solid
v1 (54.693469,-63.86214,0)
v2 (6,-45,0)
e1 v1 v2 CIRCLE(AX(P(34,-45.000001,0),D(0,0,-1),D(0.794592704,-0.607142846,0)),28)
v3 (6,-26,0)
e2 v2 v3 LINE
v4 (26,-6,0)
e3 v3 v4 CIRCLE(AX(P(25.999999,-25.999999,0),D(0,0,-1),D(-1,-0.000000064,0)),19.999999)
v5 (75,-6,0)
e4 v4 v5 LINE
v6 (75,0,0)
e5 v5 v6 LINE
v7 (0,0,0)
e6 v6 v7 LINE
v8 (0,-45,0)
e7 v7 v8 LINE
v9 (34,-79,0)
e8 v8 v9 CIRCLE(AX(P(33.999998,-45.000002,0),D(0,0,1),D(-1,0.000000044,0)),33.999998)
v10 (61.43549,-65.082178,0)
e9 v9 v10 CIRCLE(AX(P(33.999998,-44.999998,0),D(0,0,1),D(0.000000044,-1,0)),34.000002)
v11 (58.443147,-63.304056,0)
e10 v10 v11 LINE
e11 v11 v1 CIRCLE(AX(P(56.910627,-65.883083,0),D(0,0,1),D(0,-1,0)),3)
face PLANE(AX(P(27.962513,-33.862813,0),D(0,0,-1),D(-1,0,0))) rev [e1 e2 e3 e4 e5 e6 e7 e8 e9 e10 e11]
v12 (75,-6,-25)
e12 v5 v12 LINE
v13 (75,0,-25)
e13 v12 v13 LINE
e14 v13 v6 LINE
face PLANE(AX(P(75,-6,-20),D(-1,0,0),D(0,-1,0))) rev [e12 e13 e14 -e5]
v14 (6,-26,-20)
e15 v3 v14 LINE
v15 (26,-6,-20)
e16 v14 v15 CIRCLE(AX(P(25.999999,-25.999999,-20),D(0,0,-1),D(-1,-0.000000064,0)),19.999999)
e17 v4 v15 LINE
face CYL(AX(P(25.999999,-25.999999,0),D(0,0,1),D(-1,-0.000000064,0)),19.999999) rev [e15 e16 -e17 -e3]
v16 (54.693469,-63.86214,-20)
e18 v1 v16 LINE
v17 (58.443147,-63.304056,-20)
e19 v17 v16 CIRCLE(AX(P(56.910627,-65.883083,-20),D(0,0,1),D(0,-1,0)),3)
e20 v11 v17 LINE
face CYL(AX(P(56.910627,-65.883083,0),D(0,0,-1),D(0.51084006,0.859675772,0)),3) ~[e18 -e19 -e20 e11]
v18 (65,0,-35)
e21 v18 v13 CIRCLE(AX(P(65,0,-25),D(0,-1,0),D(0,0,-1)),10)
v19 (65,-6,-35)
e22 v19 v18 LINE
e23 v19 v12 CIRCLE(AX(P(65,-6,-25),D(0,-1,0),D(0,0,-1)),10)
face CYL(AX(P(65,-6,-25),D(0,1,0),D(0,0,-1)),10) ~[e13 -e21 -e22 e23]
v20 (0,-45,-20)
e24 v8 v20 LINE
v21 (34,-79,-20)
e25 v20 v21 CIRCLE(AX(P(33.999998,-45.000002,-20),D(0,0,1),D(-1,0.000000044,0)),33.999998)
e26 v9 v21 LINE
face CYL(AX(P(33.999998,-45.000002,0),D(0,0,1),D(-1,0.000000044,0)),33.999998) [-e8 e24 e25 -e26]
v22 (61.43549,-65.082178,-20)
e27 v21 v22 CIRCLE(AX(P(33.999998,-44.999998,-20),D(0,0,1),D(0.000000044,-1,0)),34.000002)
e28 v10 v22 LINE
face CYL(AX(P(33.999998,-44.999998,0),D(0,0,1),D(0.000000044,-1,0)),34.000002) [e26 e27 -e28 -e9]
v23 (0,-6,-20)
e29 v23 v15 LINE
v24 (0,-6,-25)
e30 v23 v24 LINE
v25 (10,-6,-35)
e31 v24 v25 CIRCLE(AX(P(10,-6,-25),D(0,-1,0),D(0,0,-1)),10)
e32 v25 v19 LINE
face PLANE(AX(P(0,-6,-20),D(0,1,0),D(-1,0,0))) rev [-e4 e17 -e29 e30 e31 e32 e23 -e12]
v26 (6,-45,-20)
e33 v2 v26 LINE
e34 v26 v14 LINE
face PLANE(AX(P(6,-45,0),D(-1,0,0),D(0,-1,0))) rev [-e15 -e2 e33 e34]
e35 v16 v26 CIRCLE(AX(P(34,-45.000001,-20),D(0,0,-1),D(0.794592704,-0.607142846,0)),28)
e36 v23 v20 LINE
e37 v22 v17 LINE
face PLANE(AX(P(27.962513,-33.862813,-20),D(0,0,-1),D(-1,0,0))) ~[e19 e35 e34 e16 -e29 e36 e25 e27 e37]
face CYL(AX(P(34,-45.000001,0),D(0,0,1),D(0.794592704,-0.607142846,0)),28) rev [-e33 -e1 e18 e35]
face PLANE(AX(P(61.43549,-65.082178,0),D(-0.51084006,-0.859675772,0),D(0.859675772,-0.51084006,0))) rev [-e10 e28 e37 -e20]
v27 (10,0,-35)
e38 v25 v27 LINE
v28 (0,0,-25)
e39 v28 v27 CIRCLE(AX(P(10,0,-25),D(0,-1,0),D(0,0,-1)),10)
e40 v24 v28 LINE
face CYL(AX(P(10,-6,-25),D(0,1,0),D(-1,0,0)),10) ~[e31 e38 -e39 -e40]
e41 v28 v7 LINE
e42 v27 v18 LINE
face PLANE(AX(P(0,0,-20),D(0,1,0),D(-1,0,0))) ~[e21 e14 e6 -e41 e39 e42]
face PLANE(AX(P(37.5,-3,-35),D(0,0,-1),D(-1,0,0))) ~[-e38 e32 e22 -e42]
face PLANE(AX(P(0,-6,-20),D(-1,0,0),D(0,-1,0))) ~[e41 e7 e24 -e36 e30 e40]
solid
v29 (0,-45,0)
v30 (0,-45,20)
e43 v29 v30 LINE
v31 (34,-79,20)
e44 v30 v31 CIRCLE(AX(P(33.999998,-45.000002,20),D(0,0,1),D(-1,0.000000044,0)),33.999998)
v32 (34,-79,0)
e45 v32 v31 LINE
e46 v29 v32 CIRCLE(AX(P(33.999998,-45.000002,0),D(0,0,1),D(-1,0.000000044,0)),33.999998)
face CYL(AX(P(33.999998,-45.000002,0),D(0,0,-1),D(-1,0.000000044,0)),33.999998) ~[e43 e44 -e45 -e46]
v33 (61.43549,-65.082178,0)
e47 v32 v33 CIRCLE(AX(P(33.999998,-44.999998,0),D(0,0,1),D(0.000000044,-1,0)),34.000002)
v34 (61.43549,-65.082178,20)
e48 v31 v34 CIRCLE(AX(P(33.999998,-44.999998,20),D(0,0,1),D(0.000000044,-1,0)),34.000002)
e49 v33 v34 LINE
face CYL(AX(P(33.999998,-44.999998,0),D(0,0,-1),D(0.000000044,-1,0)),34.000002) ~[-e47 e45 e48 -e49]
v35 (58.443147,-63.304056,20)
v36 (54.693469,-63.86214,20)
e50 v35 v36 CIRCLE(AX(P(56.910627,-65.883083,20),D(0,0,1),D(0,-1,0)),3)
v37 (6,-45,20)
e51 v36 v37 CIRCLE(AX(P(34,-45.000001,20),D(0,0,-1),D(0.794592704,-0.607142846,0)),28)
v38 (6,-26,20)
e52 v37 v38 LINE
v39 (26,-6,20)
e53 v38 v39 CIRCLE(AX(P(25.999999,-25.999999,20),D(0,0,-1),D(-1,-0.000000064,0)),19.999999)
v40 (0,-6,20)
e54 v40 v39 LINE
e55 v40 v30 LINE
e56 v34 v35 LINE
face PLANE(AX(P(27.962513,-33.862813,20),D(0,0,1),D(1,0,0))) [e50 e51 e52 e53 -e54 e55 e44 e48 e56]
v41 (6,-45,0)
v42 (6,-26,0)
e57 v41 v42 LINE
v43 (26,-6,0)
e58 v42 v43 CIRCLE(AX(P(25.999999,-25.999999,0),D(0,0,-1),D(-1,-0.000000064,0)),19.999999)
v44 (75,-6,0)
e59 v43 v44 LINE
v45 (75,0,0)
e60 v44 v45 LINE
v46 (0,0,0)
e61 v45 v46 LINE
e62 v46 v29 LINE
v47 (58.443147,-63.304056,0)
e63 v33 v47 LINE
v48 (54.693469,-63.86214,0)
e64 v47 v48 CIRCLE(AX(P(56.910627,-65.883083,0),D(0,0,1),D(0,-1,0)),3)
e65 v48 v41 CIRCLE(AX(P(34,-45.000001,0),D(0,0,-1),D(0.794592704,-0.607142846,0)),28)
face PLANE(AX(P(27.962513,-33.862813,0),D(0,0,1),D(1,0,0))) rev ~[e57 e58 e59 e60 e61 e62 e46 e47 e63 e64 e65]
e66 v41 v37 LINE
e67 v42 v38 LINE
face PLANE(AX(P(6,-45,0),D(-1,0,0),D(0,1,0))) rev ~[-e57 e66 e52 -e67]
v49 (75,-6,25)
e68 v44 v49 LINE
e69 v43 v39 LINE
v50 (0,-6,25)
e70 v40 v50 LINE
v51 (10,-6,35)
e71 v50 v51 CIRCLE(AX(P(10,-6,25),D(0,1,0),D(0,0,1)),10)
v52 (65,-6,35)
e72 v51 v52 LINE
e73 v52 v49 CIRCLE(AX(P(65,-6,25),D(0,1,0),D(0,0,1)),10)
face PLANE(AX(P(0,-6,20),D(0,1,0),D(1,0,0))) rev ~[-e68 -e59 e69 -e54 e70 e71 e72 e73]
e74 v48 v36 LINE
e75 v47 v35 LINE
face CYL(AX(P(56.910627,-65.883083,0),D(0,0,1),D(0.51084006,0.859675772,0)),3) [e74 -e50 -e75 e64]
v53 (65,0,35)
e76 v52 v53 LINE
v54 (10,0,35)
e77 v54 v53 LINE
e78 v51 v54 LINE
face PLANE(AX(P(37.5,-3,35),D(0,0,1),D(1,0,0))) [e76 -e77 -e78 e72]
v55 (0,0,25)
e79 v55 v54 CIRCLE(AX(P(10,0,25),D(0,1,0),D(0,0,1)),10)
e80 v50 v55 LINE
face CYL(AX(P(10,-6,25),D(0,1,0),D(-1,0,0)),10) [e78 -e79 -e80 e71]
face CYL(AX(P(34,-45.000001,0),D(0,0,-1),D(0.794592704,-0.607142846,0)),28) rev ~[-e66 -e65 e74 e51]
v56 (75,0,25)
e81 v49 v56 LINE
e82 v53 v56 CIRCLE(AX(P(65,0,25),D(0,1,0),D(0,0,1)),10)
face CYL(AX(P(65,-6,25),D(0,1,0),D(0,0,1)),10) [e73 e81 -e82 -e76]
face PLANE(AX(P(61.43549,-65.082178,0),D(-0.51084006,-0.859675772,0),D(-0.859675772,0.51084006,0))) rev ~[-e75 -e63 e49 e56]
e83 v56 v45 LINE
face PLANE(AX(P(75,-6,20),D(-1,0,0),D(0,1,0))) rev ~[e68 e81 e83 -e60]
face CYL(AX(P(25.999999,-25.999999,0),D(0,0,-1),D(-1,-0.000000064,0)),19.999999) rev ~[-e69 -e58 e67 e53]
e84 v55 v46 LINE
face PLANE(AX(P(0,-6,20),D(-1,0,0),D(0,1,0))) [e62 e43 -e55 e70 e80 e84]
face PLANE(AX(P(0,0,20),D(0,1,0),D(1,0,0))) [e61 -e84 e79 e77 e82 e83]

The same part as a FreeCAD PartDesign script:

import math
import FreeCAD as App
import Part
import Sketcher
Q = App.Units.Quantity


def edges_at(feature, points):
    """Names of the edges that pass closest to the given points."""
    edges = feature.Shape.Edges
    near = lambda p: min(range(len(edges)), key=lambda i: edges[i].distToShape(Part.Vertex(*p))[0])
    return sorted({f"Edge{near(p) + 1}" for p in points})


def add_polygon(sketch, points):
    """Adds a closed chain of lines whose ends are joined by coincident constraints."""
    first, n = sketch.GeometryCount, len(points)
    for a, b in zip(points, points[1:] + points[:1]):
        sketch.addGeometry(Part.LineSegment(App.Vector(*a, 0), App.Vector(*b, 0)), False)
    for i in range(n):
        sketch.addConstraint(Sketcher.Constraint("Coincident", first + i, 2, first + (i + 1) % n, 1))

doc = App.newDocument("Part")
body = doc.addObject("PartDesign::Body", "Body")

sketch1 = body.newObject("Sketcher::SketchObject", "Sketch")
sketch1.AttachmentSupport = (doc.getObject("XY_Plane"), [""])
sketch1.MapMode = "FlatFace"
sketch1.addGeometry([
    Part.LineSegment(App.Vector(75, -6, 0), App.Vector(75, 0, 0)),
    Part.LineSegment(App.Vector(75, 0, 0), App.Vector(0, 0, 0)),
    Part.LineSegment(App.Vector(0, 0, 0), App.Vector(0, -45, 0)),
    Part.ArcOfCircle(Part.Circle(App.Vector(34, -45, 0), App.Vector(0, 0, 1), 34), math.radians(180), math.radians(270)),
    Part.ArcOfCircle(Part.Circle(App.Vector(34, -45, 0), App.Vector(0, 0, 1), 34), math.radians(-90), math.radians(-36)),
    Part.LineSegment(App.Vector(61, -65, 0), App.Vector(56, -62, 0)),
    Part.ArcOfCircle(Part.Circle(App.Vector(34, -45, 0), App.Vector(0, 0, 1), 28), math.radians(180), math.radians(323)),
    Part.LineSegment(App.Vector(6, -45, 0), App.Vector(6, -26, 0)),
    Part.ArcOfCircle(Part.Circle(App.Vector(26, -26, 0), App.Vector(0, 0, 1), 20), math.radians(90), math.radians(180)),
    Part.LineSegment(App.Vector(26, -6, 0), App.Vector(75, -6, 0)),
], False)
sketch1.addConstraint([
    Sketcher.Constraint("Coincident", 0, 2, 1, 1),
    Sketcher.Constraint("Coincident", 1, 2, 2, 1),
    Sketcher.Constraint("Tangent", 2, 2, 3, 1),
    Sketcher.Constraint("Tangent", 3, 2, 4, 1),
    Sketcher.Constraint("Coincident", 4, 2, 5, 1),
    Sketcher.Constraint("Coincident", 5, 2, 6, 2),
    Sketcher.Constraint("Tangent", 6, 1, 7, 1),
    Sketcher.Constraint("Tangent", 7, 2, 8, 2),
    Sketcher.Constraint("Tangent", 8, 1, 9, 1),
    Sketcher.Constraint("Coincident", 9, 2, 0, 1),
    Sketcher.Constraint("Vertical", 0),
    Sketcher.Constraint("Horizontal", 1),
    Sketcher.Constraint("Vertical", 2),
    Sketcher.Constraint("Vertical", 7),
    Sketcher.Constraint("Horizontal", 9),
    Sketcher.Constraint("Coincident", 1, 2, -1, 1),
    Sketcher.Constraint("Coincident", 6, 3, 3, 3),
    Sketcher.Constraint("Vertical", 6, 3, 3, 2),
    Sketcher.Constraint("Radius", 3, Q("33.999998 mm")),
    Sketcher.Constraint("Radius", 6, Q("28 mm")),
    Sketcher.Constraint("Radius", 8, Q("19.999999 mm")),
    Sketcher.Constraint("DistanceX", 1, 2, 1, 1, Q("75 mm")),
    Sketcher.Constraint("DistanceY", 0, 1, 0, 2, Q("6 mm")),
    Sketcher.Constraint("DistanceY", 2, 2, 2, 1, Q("45 mm")),
    Sketcher.Constraint("DistanceY", 5, 2, -1, 1, Q("62 mm")),
    Sketcher.Constraint("DistanceY", 4, 3, 8, 3, Q("18.999999 mm")),
    Sketcher.Constraint("DistanceX", -1, 1, 4, 2, Q("61.43549 mm")),
])
pad1 = body.newObject("PartDesign::Pad", "Pad")
pad1.Profile = sketch1
pad1.Length = 20

sketch2 = body.newObject("Sketcher::SketchObject", "Sketch001")
sketch2.AttachmentSupport = (doc.getObject("XY_Plane"), [""])
sketch2.MapMode = "FlatFace"
sketch2.AttachmentOffset = App.Placement(App.Vector(0, 0, 20), App.Rotation())
add_polygon(sketch2, [(0, 0), (0, -6), (75, -6), (75, 0)])
sketch2.addConstraint([
    Sketcher.Constraint("Vertical", 0),
    Sketcher.Constraint("Horizontal", 1),
    Sketcher.Constraint("Vertical", 2),
    Sketcher.Constraint("Horizontal", 3),
    Sketcher.Constraint("Coincident", 3, 2, -1, 1),
    Sketcher.Constraint("DistanceX", 1, 1, 1, 2, Q("75 mm")),
    Sketcher.Constraint("DistanceY", 0, 2, 0, 1, Q("6 mm")),
])
pad2 = body.newObject("PartDesign::Pad", "Pad001")
pad2.Profile = sketch2
pad2.Length = 15
doc.recompute()

fillet = body.newObject("PartDesign::Fillet", "Fillet")
fillet.Base = (pad2, edges_at(pad2, [(56.249, -62, 10)]))
fillet.Radius = 3
doc.recompute()

fillet2 = body.newObject("PartDesign::Fillet", "Fillet001")
fillet2.Base = (fillet, edges_at(fillet, [(0, -3, 35), (75, -3, 35)]))
fillet2.Radius = 10
body2 = doc.addObject("PartDesign::Body", "Body001")
doc.recompute()

mirroring = doc.addObject("Part::Mirroring", "Mirroring")
mirroring.Source = body
mirroring.Base = App.Vector(0, 0, 0)
mirroring.Normal = App.Vector(0, 0, 1)
body2.BaseFeature = mirroring
doc.recompute()
mirroring.Visibility = False

doc.recompute()
